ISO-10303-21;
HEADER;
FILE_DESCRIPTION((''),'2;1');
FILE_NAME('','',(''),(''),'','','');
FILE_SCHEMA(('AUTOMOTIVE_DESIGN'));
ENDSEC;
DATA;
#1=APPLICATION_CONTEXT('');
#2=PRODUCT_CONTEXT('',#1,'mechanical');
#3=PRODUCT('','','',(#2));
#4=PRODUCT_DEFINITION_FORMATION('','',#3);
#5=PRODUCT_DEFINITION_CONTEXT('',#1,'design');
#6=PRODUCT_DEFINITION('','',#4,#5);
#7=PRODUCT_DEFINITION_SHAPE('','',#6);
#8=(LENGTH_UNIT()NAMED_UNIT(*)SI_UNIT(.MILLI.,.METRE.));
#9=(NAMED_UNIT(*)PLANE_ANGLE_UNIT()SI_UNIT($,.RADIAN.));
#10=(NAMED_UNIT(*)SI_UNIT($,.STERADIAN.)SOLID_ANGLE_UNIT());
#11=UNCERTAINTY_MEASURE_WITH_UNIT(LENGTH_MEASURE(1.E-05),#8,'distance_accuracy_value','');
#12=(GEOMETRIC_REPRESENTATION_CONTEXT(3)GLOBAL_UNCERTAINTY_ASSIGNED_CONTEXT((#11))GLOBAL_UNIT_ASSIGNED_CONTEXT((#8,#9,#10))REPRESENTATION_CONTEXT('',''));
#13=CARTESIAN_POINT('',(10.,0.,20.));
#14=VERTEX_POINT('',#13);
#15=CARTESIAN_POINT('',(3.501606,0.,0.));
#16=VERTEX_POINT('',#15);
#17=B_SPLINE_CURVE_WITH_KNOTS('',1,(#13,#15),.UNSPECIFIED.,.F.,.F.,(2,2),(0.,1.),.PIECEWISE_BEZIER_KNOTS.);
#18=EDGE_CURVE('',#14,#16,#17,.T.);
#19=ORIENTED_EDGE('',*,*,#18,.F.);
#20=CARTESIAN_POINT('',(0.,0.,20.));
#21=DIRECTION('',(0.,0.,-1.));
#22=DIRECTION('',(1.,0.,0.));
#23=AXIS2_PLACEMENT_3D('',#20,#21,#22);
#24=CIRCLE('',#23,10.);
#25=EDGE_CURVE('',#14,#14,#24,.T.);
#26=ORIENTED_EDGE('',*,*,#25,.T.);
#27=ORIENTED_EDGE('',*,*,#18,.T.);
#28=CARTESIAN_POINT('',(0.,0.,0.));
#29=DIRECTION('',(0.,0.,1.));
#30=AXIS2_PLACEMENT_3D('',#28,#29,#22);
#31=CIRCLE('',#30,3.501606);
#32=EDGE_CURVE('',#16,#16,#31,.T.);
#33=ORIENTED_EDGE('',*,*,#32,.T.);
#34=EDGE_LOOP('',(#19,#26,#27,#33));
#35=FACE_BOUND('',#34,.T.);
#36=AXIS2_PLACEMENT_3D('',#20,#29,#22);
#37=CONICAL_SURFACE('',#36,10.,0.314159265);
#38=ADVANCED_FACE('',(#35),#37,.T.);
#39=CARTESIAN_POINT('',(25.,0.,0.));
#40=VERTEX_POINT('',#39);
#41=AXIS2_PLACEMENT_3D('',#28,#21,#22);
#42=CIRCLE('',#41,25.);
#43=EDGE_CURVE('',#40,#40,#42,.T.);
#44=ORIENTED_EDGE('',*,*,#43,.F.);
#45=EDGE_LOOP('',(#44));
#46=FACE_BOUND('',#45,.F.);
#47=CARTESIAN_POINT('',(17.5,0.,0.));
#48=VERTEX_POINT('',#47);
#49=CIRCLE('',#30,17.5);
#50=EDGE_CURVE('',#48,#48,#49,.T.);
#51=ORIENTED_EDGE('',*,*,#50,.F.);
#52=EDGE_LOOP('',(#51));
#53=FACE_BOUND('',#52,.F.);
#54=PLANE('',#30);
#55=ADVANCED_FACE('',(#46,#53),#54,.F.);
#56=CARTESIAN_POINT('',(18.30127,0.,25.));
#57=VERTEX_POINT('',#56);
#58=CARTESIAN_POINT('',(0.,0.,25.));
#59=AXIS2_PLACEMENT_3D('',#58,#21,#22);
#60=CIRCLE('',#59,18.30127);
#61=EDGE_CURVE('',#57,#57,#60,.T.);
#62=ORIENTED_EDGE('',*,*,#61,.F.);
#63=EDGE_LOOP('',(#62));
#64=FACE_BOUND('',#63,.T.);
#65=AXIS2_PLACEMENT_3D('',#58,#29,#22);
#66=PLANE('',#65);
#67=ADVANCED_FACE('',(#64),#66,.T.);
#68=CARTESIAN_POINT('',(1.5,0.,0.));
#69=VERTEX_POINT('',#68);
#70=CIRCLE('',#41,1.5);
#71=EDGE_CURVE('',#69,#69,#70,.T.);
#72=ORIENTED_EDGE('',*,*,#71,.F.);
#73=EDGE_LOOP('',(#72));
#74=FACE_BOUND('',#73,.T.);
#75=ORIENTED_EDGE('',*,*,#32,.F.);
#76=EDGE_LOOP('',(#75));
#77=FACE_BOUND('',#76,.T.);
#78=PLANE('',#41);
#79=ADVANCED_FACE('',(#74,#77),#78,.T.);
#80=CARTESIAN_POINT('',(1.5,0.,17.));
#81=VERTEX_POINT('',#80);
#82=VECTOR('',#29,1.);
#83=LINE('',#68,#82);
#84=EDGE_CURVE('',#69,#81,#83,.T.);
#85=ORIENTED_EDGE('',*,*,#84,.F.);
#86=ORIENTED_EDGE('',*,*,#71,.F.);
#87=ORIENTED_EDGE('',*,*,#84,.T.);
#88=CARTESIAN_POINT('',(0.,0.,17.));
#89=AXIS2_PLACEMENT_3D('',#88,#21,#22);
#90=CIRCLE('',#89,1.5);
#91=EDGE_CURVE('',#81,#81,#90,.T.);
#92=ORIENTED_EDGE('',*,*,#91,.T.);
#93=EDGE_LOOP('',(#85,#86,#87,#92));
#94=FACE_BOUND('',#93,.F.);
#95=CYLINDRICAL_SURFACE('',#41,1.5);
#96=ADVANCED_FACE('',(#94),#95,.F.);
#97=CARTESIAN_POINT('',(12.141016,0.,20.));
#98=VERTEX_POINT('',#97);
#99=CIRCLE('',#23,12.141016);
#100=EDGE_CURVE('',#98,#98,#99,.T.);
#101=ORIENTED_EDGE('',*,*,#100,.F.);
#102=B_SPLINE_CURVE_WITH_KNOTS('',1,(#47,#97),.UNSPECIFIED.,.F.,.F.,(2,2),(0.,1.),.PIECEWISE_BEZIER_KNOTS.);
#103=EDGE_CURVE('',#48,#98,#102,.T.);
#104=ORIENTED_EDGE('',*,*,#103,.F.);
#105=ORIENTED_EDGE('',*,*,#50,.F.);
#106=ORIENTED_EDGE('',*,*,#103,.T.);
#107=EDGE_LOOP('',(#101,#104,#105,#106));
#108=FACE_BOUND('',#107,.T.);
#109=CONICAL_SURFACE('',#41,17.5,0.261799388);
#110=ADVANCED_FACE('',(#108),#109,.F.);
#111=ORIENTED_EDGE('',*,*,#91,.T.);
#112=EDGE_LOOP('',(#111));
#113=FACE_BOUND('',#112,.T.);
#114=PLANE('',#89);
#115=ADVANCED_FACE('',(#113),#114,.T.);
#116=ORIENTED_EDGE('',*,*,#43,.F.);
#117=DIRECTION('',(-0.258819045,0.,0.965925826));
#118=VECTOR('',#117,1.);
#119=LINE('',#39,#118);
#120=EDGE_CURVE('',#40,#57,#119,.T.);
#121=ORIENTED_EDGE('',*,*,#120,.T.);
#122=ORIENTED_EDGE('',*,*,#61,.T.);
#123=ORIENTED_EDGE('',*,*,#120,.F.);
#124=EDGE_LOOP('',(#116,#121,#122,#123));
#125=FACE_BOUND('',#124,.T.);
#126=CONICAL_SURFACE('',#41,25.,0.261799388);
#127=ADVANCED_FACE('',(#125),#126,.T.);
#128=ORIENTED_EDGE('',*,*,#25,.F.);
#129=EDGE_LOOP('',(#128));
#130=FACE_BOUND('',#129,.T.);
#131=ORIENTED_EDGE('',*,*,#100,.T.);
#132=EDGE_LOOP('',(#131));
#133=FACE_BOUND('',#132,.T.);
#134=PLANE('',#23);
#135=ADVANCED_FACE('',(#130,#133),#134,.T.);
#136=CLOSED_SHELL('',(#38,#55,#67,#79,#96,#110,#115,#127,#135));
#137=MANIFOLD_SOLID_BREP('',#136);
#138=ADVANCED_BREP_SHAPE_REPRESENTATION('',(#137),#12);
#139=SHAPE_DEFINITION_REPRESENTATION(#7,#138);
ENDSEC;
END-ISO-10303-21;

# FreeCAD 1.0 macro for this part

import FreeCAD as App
import Part
import Sketcher
from FreeCAD import Vector
Q = App.Units.Quantity

doc = App.newDocument("Part")
params = doc.addObject("Spreadsheet::Sheet", "Params")
for row, (alias, value) in enumerate([
    ("sketch1_diameter", "50 mm"),
    ("pad1_length", "25 mm"),
    ("pad1_taper", "-15 deg"),
    ("sketch2_diameter", "35 mm"),
    ("pocket1_length", "20 mm"),
    ("pocket1_taper", "-15 deg"),
    ("sketch3_diameter", "20 mm"),
    ("pad2_length", "20 mm"),
    ("pad2_taper", "-18 deg"),
    ("sketch4_diameter", "3 mm"),
    ("pocket2_length", "17 mm"),
], start=1):
    params.set(f"A{row}", alias)
    params.set(f"B{row}", "=" + value)
    params.setAlias(f"B{row}", alias)

body = doc.addObject("PartDesign::Body", "Body")

sketch1 = doc.addObject("Sketcher::SketchObject", "Sketch")
body.addObject(sketch1)
sketch1.AttachmentSupport = (doc.XY_Plane, [""])
sketch1.MapMode = "FlatFace"
sketch1.addGeometry(Part.Circle(Vector(0, 0, 0), Vector(0, 0, 1), 25), False)
sketch1.addConstraint([
    Sketcher.Constraint("Coincident", 0, 3, -1, 1),
    Sketcher.Constraint("Diameter", 0, Q("50 mm")),
])
sketch1.setExpression("Constraints[1]", "Params.sketch1_diameter")
pad1 = doc.addObject("PartDesign::Pad", "Pad")
body.addObject(pad1)
pad1.Profile = sketch1
pad1.setExpression("Length", "Params.pad1_length")
pad1.setExpression("TaperAngle", "Params.pad1_taper")

sketch2 = doc.addObject("Sketcher::SketchObject", "Sketch001")
body.addObject(sketch2)
sketch2.AttachmentSupport = (doc.XY_Plane, [""])
sketch2.MapMode = "FlatFace"
sketch2.addGeometry(Part.Circle(Vector(0, 0, 0), Vector(0, 0, 1), 17.5), False)
sketch2.addConstraint([
    Sketcher.Constraint("Coincident", 0, 3, -1, 1),
    Sketcher.Constraint("Diameter", 0, Q("35 mm")),
])
sketch2.setExpression("Constraints[1]", "Params.sketch2_diameter")
pocket1 = doc.addObject("PartDesign::Pocket", "Pocket")
body.addObject(pocket1)
pocket1.Profile = sketch2
pocket1.setExpression("Length", "Params.pocket1_length")
pocket1.Reversed = True
pocket1.setExpression("TaperAngle", "Params.pocket1_taper")

sketch3 = doc.addObject("Sketcher::SketchObject", "Sketch002")
body.addObject(sketch3)
sketch3.AttachmentSupport = (doc.XY_Plane, [""])
sketch3.MapMode = "FlatFace"
sketch3.AttachmentOffset = App.Placement(Vector(0, 0, 20), App.Rotation())
sketch3.addGeometry(Part.Circle(Vector(0, 0, 0), Vector(0, 0, 1), 10), False)
sketch3.addConstraint([
    Sketcher.Constraint("Coincident", 0, 3, -1, 1),
    Sketcher.Constraint("Diameter", 0, Q("20 mm")),
])
sketch3.setExpression("Constraints[1]", "Params.sketch3_diameter")
pad2 = doc.addObject("PartDesign::Pad", "Pad001")
body.addObject(pad2)
pad2.Profile = sketch3
pad2.setExpression("Length", "Params.pad2_length")
pad2.Reversed = True
pad2.setExpression("TaperAngle", "Params.pad2_taper")

sketch4 = doc.addObject("Sketcher::SketchObject", "Sketch003")
body.addObject(sketch4)
sketch4.AttachmentSupport = (doc.XY_Plane, [""])
sketch4.MapMode = "FlatFace"
sketch4.addGeometry(Part.Circle(Vector(0, 0, 0), Vector(0, 0, 1), 1.5), False)
sketch4.addConstraint([
    Sketcher.Constraint("Coincident", 0, 3, -1, 1),
    Sketcher.Constraint("Diameter", 0, Q("3 mm")),
])
sketch4.setExpression("Constraints[1]", "Params.sketch4_diameter")
pocket2 = doc.addObject("PartDesign::Pocket", "Pocket001")
body.addObject(pocket2)
pocket2.Profile = sketch4
pocket2.setExpression("Length", "Params.pocket2_length")
pocket2.Reversed = True

doc.recompute()
